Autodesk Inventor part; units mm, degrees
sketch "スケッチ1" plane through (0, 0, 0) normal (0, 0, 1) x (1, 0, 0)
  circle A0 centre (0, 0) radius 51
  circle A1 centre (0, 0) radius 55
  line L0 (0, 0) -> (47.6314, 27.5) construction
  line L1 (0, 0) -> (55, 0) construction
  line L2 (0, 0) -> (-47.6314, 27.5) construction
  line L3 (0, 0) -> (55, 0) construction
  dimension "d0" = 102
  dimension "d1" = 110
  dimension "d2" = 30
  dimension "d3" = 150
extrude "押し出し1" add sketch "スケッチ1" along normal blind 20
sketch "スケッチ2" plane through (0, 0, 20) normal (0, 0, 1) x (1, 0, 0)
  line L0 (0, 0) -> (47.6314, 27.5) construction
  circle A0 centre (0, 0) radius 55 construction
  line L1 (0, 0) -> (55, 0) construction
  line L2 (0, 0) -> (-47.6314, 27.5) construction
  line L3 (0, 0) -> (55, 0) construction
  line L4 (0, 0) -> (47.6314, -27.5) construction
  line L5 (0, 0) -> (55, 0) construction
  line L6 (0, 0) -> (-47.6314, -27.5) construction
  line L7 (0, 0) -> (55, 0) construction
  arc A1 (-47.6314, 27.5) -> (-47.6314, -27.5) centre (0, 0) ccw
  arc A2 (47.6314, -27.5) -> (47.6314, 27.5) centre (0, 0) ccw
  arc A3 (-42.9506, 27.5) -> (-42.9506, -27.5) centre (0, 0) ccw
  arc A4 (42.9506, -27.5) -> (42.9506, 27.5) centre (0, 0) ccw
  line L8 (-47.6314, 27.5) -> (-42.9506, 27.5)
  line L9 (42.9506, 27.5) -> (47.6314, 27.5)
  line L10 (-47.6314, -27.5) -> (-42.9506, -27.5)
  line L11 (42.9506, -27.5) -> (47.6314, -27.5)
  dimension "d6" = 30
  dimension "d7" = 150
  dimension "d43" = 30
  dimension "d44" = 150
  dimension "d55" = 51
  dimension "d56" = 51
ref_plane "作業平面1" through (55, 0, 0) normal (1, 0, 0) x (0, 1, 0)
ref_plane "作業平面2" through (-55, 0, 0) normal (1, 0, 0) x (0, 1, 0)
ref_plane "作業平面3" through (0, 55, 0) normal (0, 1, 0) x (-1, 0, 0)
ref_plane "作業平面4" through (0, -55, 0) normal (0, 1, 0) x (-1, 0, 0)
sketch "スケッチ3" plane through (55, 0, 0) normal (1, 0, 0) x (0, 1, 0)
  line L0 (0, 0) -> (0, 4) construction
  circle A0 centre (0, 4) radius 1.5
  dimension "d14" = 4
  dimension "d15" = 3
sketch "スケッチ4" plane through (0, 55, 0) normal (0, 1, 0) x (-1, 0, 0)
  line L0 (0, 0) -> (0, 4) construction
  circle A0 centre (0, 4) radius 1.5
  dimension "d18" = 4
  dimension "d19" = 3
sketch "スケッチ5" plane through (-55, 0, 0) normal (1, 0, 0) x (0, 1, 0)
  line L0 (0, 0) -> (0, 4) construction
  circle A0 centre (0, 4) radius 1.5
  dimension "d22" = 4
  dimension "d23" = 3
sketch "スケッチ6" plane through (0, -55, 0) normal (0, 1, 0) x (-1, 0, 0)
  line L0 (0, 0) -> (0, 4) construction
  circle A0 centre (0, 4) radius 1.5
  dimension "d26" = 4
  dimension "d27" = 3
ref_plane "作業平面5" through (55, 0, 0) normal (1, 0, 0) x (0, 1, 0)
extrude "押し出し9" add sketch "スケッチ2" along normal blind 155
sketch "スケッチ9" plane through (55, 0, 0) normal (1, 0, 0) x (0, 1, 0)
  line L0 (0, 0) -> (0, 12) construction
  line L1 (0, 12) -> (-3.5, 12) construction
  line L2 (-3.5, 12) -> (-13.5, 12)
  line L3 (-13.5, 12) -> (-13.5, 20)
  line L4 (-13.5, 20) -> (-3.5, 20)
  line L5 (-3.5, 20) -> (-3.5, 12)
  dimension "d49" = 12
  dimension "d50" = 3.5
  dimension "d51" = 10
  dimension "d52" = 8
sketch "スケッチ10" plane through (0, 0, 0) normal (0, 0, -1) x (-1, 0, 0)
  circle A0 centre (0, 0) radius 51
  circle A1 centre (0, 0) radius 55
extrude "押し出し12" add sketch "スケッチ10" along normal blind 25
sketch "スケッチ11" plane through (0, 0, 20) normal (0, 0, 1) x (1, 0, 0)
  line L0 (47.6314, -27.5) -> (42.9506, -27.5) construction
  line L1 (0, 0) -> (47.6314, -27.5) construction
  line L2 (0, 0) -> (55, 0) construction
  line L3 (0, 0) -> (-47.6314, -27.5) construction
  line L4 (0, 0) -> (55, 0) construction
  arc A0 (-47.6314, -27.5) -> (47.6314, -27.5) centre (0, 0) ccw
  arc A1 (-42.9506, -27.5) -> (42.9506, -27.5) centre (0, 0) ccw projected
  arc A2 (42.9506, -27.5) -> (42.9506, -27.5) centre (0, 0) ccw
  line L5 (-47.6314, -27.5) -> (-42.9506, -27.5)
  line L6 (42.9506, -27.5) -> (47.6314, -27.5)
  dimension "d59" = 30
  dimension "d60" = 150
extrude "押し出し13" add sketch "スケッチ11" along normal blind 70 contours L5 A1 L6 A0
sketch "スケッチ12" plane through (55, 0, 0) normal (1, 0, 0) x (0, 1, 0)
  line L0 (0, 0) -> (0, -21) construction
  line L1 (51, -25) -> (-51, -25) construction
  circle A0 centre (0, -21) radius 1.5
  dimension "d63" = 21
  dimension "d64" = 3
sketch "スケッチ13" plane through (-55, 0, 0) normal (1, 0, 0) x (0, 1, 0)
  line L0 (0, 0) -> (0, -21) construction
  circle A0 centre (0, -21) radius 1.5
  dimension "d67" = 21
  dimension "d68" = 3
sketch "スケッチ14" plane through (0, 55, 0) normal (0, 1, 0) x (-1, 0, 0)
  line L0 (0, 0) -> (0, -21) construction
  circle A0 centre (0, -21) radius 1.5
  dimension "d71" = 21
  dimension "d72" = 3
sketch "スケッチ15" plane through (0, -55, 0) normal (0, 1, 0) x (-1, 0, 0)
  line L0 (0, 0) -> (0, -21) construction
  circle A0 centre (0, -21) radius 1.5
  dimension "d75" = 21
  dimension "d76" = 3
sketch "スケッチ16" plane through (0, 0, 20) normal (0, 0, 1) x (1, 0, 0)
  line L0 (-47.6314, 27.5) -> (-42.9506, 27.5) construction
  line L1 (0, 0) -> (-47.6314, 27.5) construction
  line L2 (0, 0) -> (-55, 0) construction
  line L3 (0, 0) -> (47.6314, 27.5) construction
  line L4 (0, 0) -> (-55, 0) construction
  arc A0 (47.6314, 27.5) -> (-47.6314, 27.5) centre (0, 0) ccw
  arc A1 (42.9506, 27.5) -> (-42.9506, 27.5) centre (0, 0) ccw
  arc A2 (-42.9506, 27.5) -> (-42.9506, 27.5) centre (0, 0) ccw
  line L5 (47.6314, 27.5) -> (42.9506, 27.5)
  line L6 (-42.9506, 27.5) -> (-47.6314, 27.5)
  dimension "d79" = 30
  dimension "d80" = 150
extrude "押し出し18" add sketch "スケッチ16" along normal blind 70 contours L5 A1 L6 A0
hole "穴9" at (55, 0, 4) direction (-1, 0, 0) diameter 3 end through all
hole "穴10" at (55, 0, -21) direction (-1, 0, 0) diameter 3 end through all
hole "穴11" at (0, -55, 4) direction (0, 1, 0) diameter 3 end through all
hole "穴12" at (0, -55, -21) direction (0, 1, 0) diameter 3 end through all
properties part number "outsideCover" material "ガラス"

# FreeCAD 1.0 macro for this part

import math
import FreeCAD as App
import Part
import Sketcher
Q = App.Units.Quantity

doc = App.newDocument("Part")
params = doc.addObject("Spreadsheet::Sheet", "Params")
for row, (alias, value) in enumerate([
    ("sketch1_diameter", "110 mm"),
    ("sketch1_diameter2", "102 mm"),
    ("pad1_length", "20 mm"),
    ("sketch2_radius", "51 mm"),
    ("sketch2_radius2", "55 mm"),
    ("pad2_length", "155 mm"),
    ("sketch3_diameter", "110 mm"),
    ("sketch3_diameter2", "102 mm"),
    ("pad3_length", "25 mm"),
    ("sketch4_radius", "55 mm"),
    ("sketch4_radius2", "51 mm"),
    ("pad4_length", "70 mm"),
    ("sketch5_radius", "55 mm"),
    ("sketch5_radius2", "51 mm"),
    ("pad5_length", "70 mm"),
    ("sketch6_diameter", "3 mm"),
    ("hole_diameter", "3 mm"),
    ("sketch7_diameter", "3 mm"),
    ("hole2_diameter", "3 mm"),
    ("sketch8_diameter", "3 mm"),
    ("hole3_diameter", "3 mm"),
    ("sketch9_diameter", "3 mm"),
    ("hole4_diameter", "3 mm"),
], start=1):
    params.set(f"A{row}", alias)
    params.set(f"B{row}", "=" + value)
    params.setAlias(f"B{row}", alias)

body = doc.addObject("PartDesign::Body", "Body")

sketch1 = body.newObject("Sketcher::SketchObject", "Sketch")
sketch1.AttachmentSupport = (doc.getObject("XY_Plane"), [""])
sketch1.MapMode = "FlatFace"
sketch1.addGeometry([
    Part.Circle(App.Vector(0, 0, 0), App.Vector(0, 0, 1), 55),
    Part.Circle(App.Vector(0, 0, 0), App.Vector(0, 0, 1), 51),
], False)
sketch1.addConstraint([
    Sketcher.Constraint("Coincident", 0, 3, -1, 1),
    Sketcher.Constraint("Coincident", 1, 3, -1, 1),
    Sketcher.Constraint("Diameter", 0, Q("110 mm")),
    Sketcher.Constraint("Diameter", 1, Q("102 mm")),
])
sketch1.setExpression("Constraints[2]", "Params.sketch1_diameter")
sketch1.setExpression("Constraints[3]", "Params.sketch1_diameter2")
pad1 = body.newObject("PartDesign::Pad", "Pad")
pad1.Profile = sketch1
pad1.setExpression("Length", "Params.pad1_length")

sketch2 = body.newObject("Sketcher::SketchObject", "Sketch001")
sketch2.AttachmentSupport = (doc.getObject("XY_Plane"), [""])
sketch2.MapMode = "FlatFace"
sketch2.AttachmentOffset = App.Placement(App.Vector(0, 0, 20), App.Rotation())
sketch2.addGeometry([
    Part.LineSegment(App.Vector(-43, 27.5, 0), App.Vector(-47.6, 27.5, 0)),
    Part.ArcOfCircle(Part.Circle(App.Vector(0, 0, 0), App.Vector(0, 0, 1), 55), math.radians(150), math.radians(210)),
    Part.LineSegment(App.Vector(-47.6, -27.5, 0), App.Vector(-43, -27.5, 0)),
    Part.ArcOfCircle(Part.Circle(App.Vector(0, 0, 0), App.Vector(0, 0, 1), 51), math.radians(147), math.radians(213)),
    Part.LineSegment(App.Vector(43, -27.5, 0), App.Vector(47.6, -27.5, 0)),
    Part.ArcOfCircle(Part.Circle(App.Vector(0, 0, 0), App.Vector(0, 0, 1), 55), math.radians(-30), math.radians(30)),
    Part.LineSegment(App.Vector(47.6, 27.5, 0), App.Vector(43, 27.5, 0)),
    Part.ArcOfCircle(Part.Circle(App.Vector(0, 0, 0), App.Vector(0, 0, 1), 51), math.radians(-33), math.radians(33)),
], False)
sketch2.addConstraint([
    Sketcher.Constraint("Coincident", 0, 2, 1, 1),
    Sketcher.Constraint("Coincident", 1, 2, 2, 1),
    Sketcher.Constraint("Coincident", 2, 2, 3, 2),
    Sketcher.Constraint("Coincident", 3, 1, 0, 1),
    Sketcher.Constraint("Coincident", 4, 2, 5, 1),
    Sketcher.Constraint("Coincident", 5, 2, 6, 1),
    Sketcher.Constraint("Coincident", 6, 2, 7, 2),
    Sketcher.Constraint("Coincident", 7, 1, 4, 1),
    Sketcher.Constraint("Horizontal", 0),
    Sketcher.Constraint("Horizontal", 2),
    Sketcher.Constraint("Horizontal", 4),
    Sketcher.Constraint("Horizontal", 6),
    Sketcher.Constraint("Coincident", 1, 3, -1, 1),
    Sketcher.Constraint("Coincident", 3, 3, -1, 1),
    Sketcher.Constraint("Coincident", 5, 3, -1, 1),
    Sketcher.Constraint("Coincident", 7, 3, -1, 1),
    Sketcher.Constraint("Equal", 1, 5),
    Sketcher.Constraint("Equal", 3, 7),
    Sketcher.Constraint("Horizontal", 2, 2, 4, 2),
    Sketcher.Constraint("Horizontal", 3, 1, 5, 2),
    Sketcher.Constraint("Vertical", 0, 2, 1, 2),
    Sketcher.Constraint("Radius", 3, Q("51 mm")),
    Sketcher.Constraint("Radius", 1, Q("55 mm")),
    Sketcher.Constraint("DistanceY", 1, 2, 0, 2, Q("55 mm")),
])
sketch2.setExpression("Constraints[21]", "Params.sketch2_radius")
sketch2.setExpression("Constraints[22]", "Params.sketch2_radius2")
pad2 = body.newObject("PartDesign::Pad", "Pad001")
pad2.Profile = sketch2
pad2.setExpression("Length", "Params.pad2_length")

sketch3 = body.newObject("Sketcher::SketchObject", "Sketch002")
sketch3.AttachmentSupport = (doc.getObject("XY_Plane"), [""])
sketch3.MapMode = "FlatFace"
sketch3.addGeometry([
    Part.Circle(App.Vector(0, 0, 0), App.Vector(0, 0, 1), 55),
    Part.Circle(App.Vector(0, 0, 0), App.Vector(0, 0, 1), 51),
], False)
sketch3.addConstraint([
    Sketcher.Constraint("Coincident", 0, 3, -1, 1),
    Sketcher.Constraint("Coincident", 1, 3, -1, 1),
    Sketcher.Constraint("Diameter", 0, Q("110 mm")),
    Sketcher.Constraint("Diameter", 1, Q("102 mm")),
])
sketch3.setExpression("Constraints[2]", "Params.sketch3_diameter")
sketch3.setExpression("Constraints[3]", "Params.sketch3_diameter2")
pad3 = body.newObject("PartDesign::Pad", "Pad002")
pad3.Profile = sketch3
pad3.setExpression("Length", "Params.pad3_length")
pad3.Reversed = True

sketch4 = body.newObject("Sketcher::SketchObject", "Sketch003")
sketch4.AttachmentSupport = (doc.getObject("XY_Plane"), [""])
sketch4.MapMode = "FlatFace"
sketch4.AttachmentOffset = App.Placement(App.Vector(0, 0, 20), App.Rotation())
sketch4.addGeometry([
    Part.LineSegment(App.Vector(-43, -27.5, 0), App.Vector(-47.6, -27.5, 0)),
    Part.ArcOfCircle(Part.Circle(App.Vector(0, 0, 0), App.Vector(0, 0, 1), 55), math.radians(-150), math.radians(-30)),
    Part.LineSegment(App.Vector(47.6, -27.5, 0), App.Vector(43, -27.5, 0)),
    Part.ArcOfCircle(Part.Circle(App.Vector(0, 0, 0), App.Vector(0, 0, 1), 51), math.radians(-147), math.radians(-33)),
], False)
sketch4.addConstraint([
    Sketcher.Constraint("Coincident", 0, 2, 1, 1),
    Sketcher.Constraint("Coincident", 1, 2, 2, 1),
    Sketcher.Constraint("Coincident", 2, 2, 3, 2),
    Sketcher.Constraint("Coincident", 3, 1, 0, 1),
    Sketcher.Constraint("Horizontal", 0),
    Sketcher.Constraint("Horizontal", 2),
    Sketcher.Constraint("Coincident", 1, 3, -1, 1),
    Sketcher.Constraint("Coincident", 3, 3, -1, 1),
    Sketcher.Constraint("Horizontal", 0, 2, 1, 2),
    Sketcher.Constraint("Radius", 1, Q("55 mm")),
    Sketcher.Constraint("Radius", 3, Q("51 mm")),
    Sketcher.Constraint("DistanceY", 0, 2, -1, 1, Q("27.5 mm")),
])
sketch4.setExpression("Constraints[9]", "Params.sketch4_radius")
sketch4.setExpression("Constraints[10]", "Params.sketch4_radius2")
pad4 = body.newObject("PartDesign::Pad", "Pad003")
pad4.Profile = sketch4
pad4.setExpression("Length", "Params.pad4_length")

sketch5 = body.newObject("Sketcher::SketchObject", "Sketch004")
sketch5.AttachmentSupport = (doc.getObject("XY_Plane"), [""])
sketch5.MapMode = "FlatFace"
sketch5.AttachmentOffset = App.Placement(App.Vector(0, 0, 20), App.Rotation())
sketch5.addGeometry([
    Part.LineSegment(App.Vector(43, 27.5, 0), App.Vector(47.6, 27.5, 0)),
    Part.ArcOfCircle(Part.Circle(App.Vector(0, 0, 0), App.Vector(0, 0, 1), 55), math.radians(30), math.radians(150)),
    Part.LineSegment(App.Vector(-47.6, 27.5, 0), App.Vector(-43, 27.5, 0)),
    Part.ArcOfCircle(Part.Circle(App.Vector(0, 0, 0), App.Vector(0, 0, 1), 51), math.radians(33), math.radians(147)),
], False)
sketch5.addConstraint([
    Sketcher.Constraint("Coincident", 0, 2, 1, 1),
    Sketcher.Constraint("Coincident", 1, 2, 2, 1),
    Sketcher.Constraint("Coincident", 2, 2, 3, 2),
    Sketcher.Constraint("Coincident", 3, 1, 0, 1),
    Sketcher.Constraint("Horizontal", 0),
    Sketcher.Constraint("Horizontal", 2),
    Sketcher.Constraint("Coincident", 1, 3, -1, 1),
    Sketcher.Constraint("Coincident", 3, 3, -1, 1),
    Sketcher.Constraint("Horizontal", 0, 2, 1, 2),
    Sketcher.Constraint("Radius", 1, Q("55 mm")),
    Sketcher.Constraint("Radius", 3, Q("51 mm")),
    Sketcher.Constraint("DistanceY", -1, 1, 0, 2, Q("27.5 mm")),
])
sketch5.setExpression("Constraints[9]", "Params.sketch5_radius")
sketch5.setExpression("Constraints[10]", "Params.sketch5_radius2")
pad5 = body.newObject("PartDesign::Pad", "Pad004")
pad5.Profile = sketch5
pad5.setExpression("Length", "Params.pad5_length")

sketch6 = body.newObject("Sketcher::SketchObject", "Sketch005")
sketch6.AttachmentSupport = (doc.getObject("YZ_Plane"), [""])
sketch6.MapMode = "FlatFace"
sketch6.AttachmentOffset = App.Placement(App.Vector(0, 0, 55), App.Rotation())
sketch6.addGeometry(Part.Circle(App.Vector(0, 4, 0), App.Vector(0, 0, 1), 1.5), False)
sketch6.addConstraint([
    Sketcher.Constraint("PointOnObject", 0, 3, -2),
    Sketcher.Constraint("Diameter", 0, Q("3 mm")),
    Sketcher.Constraint("DistanceY", -1, 1, 0, 3, Q("4 mm")),
])
sketch6.setExpression("Constraints[1]", "Params.sketch6_diameter")
doc.recompute()
hole = body.newObject("PartDesign::Hole", "Hole")
hole.Profile = sketch6
hole.ThreadType = "None"
hole.setExpression("Diameter", "Params.hole_diameter")
hole.DepthType = "ThroughAll"

sketch7 = body.newObject("Sketcher::SketchObject", "Sketch006")
sketch7.AttachmentSupport = (doc.getObject("YZ_Plane"), [""])
sketch7.MapMode = "FlatFace"
sketch7.AttachmentOffset = App.Placement(App.Vector(0, 0, 55), App.Rotation())
sketch7.addGeometry(Part.Circle(App.Vector(0, -21, 0), App.Vector(0, 0, 1), 1.5), False)
sketch7.addConstraint([
    Sketcher.Constraint("PointOnObject", 0, 3, -2),
    Sketcher.Constraint("Diameter", 0, Q("3 mm")),
    Sketcher.Constraint("DistanceY", 0, 3, -1, 1, Q("21 mm")),
])
sketch7.setExpression("Constraints[1]", "Params.sketch7_diameter")
doc.recompute()
hole2 = body.newObject("PartDesign::Hole", "Hole001")
hole2.Profile = sketch7
hole2.ThreadType = "None"
hole2.setExpression("Diameter", "Params.hole2_diameter")
hole2.DepthType = "ThroughAll"

sketch8 = body.newObject("Sketcher::SketchObject", "Sketch007")
sketch8.AttachmentSupport = (doc.getObject("XZ_Plane"), [""])
sketch8.MapMode = "FlatFace"
sketch8.AttachmentOffset = App.Placement(App.Vector(0, 0, 55), App.Rotation())
sketch8.addGeometry(Part.Circle(App.Vector(0, 4, 0), App.Vector(0, 0, 1), 1.5), False)
sketch8.addConstraint([
    Sketcher.Constraint("PointOnObject", 0, 3, -2),
    Sketcher.Constraint("Diameter", 0, Q("3 mm")),
    Sketcher.Constraint("DistanceY", -1, 1, 0, 3, Q("4 mm")),
])
sketch8.setExpression("Constraints[1]", "Params.sketch8_diameter")
doc.recompute()
hole3 = body.newObject("PartDesign::Hole", "Hole002")
hole3.Profile = sketch8
hole3.ThreadType = "None"
hole3.setExpression("Diameter", "Params.hole3_diameter")
hole3.DepthType = "ThroughAll"

sketch9 = body.newObject("Sketcher::SketchObject", "Sketch008")
sketch9.AttachmentSupport = (doc.getObject("XZ_Plane"), [""])
sketch9.MapMode = "FlatFace"
sketch9.AttachmentOffset = App.Placement(App.Vector(0, 0, 55), App.Rotation())
sketch9.addGeometry(Part.Circle(App.Vector(0, -21, 0), App.Vector(0, 0, 1), 1.5), False)
sketch9.addConstraint([
    Sketcher.Constraint("PointOnObject", 0, 3, -2),
    Sketcher.Constraint("Diameter", 0, Q("3 mm")),
    Sketcher.Constraint("DistanceY", 0, 3, -1, 1, Q("21 mm")),
])
sketch9.setExpression("Constraints[1]", "Params.sketch9_diameter")
doc.recompute()
hole4 = body.newObject("PartDesign::Hole", "Hole003")
hole4.Profile = sketch9
hole4.ThreadType = "None"
hole4.setExpression("Diameter", "Params.hole4_diameter")
hole4.DepthType = "ThroughAll"

doc.recompute()
